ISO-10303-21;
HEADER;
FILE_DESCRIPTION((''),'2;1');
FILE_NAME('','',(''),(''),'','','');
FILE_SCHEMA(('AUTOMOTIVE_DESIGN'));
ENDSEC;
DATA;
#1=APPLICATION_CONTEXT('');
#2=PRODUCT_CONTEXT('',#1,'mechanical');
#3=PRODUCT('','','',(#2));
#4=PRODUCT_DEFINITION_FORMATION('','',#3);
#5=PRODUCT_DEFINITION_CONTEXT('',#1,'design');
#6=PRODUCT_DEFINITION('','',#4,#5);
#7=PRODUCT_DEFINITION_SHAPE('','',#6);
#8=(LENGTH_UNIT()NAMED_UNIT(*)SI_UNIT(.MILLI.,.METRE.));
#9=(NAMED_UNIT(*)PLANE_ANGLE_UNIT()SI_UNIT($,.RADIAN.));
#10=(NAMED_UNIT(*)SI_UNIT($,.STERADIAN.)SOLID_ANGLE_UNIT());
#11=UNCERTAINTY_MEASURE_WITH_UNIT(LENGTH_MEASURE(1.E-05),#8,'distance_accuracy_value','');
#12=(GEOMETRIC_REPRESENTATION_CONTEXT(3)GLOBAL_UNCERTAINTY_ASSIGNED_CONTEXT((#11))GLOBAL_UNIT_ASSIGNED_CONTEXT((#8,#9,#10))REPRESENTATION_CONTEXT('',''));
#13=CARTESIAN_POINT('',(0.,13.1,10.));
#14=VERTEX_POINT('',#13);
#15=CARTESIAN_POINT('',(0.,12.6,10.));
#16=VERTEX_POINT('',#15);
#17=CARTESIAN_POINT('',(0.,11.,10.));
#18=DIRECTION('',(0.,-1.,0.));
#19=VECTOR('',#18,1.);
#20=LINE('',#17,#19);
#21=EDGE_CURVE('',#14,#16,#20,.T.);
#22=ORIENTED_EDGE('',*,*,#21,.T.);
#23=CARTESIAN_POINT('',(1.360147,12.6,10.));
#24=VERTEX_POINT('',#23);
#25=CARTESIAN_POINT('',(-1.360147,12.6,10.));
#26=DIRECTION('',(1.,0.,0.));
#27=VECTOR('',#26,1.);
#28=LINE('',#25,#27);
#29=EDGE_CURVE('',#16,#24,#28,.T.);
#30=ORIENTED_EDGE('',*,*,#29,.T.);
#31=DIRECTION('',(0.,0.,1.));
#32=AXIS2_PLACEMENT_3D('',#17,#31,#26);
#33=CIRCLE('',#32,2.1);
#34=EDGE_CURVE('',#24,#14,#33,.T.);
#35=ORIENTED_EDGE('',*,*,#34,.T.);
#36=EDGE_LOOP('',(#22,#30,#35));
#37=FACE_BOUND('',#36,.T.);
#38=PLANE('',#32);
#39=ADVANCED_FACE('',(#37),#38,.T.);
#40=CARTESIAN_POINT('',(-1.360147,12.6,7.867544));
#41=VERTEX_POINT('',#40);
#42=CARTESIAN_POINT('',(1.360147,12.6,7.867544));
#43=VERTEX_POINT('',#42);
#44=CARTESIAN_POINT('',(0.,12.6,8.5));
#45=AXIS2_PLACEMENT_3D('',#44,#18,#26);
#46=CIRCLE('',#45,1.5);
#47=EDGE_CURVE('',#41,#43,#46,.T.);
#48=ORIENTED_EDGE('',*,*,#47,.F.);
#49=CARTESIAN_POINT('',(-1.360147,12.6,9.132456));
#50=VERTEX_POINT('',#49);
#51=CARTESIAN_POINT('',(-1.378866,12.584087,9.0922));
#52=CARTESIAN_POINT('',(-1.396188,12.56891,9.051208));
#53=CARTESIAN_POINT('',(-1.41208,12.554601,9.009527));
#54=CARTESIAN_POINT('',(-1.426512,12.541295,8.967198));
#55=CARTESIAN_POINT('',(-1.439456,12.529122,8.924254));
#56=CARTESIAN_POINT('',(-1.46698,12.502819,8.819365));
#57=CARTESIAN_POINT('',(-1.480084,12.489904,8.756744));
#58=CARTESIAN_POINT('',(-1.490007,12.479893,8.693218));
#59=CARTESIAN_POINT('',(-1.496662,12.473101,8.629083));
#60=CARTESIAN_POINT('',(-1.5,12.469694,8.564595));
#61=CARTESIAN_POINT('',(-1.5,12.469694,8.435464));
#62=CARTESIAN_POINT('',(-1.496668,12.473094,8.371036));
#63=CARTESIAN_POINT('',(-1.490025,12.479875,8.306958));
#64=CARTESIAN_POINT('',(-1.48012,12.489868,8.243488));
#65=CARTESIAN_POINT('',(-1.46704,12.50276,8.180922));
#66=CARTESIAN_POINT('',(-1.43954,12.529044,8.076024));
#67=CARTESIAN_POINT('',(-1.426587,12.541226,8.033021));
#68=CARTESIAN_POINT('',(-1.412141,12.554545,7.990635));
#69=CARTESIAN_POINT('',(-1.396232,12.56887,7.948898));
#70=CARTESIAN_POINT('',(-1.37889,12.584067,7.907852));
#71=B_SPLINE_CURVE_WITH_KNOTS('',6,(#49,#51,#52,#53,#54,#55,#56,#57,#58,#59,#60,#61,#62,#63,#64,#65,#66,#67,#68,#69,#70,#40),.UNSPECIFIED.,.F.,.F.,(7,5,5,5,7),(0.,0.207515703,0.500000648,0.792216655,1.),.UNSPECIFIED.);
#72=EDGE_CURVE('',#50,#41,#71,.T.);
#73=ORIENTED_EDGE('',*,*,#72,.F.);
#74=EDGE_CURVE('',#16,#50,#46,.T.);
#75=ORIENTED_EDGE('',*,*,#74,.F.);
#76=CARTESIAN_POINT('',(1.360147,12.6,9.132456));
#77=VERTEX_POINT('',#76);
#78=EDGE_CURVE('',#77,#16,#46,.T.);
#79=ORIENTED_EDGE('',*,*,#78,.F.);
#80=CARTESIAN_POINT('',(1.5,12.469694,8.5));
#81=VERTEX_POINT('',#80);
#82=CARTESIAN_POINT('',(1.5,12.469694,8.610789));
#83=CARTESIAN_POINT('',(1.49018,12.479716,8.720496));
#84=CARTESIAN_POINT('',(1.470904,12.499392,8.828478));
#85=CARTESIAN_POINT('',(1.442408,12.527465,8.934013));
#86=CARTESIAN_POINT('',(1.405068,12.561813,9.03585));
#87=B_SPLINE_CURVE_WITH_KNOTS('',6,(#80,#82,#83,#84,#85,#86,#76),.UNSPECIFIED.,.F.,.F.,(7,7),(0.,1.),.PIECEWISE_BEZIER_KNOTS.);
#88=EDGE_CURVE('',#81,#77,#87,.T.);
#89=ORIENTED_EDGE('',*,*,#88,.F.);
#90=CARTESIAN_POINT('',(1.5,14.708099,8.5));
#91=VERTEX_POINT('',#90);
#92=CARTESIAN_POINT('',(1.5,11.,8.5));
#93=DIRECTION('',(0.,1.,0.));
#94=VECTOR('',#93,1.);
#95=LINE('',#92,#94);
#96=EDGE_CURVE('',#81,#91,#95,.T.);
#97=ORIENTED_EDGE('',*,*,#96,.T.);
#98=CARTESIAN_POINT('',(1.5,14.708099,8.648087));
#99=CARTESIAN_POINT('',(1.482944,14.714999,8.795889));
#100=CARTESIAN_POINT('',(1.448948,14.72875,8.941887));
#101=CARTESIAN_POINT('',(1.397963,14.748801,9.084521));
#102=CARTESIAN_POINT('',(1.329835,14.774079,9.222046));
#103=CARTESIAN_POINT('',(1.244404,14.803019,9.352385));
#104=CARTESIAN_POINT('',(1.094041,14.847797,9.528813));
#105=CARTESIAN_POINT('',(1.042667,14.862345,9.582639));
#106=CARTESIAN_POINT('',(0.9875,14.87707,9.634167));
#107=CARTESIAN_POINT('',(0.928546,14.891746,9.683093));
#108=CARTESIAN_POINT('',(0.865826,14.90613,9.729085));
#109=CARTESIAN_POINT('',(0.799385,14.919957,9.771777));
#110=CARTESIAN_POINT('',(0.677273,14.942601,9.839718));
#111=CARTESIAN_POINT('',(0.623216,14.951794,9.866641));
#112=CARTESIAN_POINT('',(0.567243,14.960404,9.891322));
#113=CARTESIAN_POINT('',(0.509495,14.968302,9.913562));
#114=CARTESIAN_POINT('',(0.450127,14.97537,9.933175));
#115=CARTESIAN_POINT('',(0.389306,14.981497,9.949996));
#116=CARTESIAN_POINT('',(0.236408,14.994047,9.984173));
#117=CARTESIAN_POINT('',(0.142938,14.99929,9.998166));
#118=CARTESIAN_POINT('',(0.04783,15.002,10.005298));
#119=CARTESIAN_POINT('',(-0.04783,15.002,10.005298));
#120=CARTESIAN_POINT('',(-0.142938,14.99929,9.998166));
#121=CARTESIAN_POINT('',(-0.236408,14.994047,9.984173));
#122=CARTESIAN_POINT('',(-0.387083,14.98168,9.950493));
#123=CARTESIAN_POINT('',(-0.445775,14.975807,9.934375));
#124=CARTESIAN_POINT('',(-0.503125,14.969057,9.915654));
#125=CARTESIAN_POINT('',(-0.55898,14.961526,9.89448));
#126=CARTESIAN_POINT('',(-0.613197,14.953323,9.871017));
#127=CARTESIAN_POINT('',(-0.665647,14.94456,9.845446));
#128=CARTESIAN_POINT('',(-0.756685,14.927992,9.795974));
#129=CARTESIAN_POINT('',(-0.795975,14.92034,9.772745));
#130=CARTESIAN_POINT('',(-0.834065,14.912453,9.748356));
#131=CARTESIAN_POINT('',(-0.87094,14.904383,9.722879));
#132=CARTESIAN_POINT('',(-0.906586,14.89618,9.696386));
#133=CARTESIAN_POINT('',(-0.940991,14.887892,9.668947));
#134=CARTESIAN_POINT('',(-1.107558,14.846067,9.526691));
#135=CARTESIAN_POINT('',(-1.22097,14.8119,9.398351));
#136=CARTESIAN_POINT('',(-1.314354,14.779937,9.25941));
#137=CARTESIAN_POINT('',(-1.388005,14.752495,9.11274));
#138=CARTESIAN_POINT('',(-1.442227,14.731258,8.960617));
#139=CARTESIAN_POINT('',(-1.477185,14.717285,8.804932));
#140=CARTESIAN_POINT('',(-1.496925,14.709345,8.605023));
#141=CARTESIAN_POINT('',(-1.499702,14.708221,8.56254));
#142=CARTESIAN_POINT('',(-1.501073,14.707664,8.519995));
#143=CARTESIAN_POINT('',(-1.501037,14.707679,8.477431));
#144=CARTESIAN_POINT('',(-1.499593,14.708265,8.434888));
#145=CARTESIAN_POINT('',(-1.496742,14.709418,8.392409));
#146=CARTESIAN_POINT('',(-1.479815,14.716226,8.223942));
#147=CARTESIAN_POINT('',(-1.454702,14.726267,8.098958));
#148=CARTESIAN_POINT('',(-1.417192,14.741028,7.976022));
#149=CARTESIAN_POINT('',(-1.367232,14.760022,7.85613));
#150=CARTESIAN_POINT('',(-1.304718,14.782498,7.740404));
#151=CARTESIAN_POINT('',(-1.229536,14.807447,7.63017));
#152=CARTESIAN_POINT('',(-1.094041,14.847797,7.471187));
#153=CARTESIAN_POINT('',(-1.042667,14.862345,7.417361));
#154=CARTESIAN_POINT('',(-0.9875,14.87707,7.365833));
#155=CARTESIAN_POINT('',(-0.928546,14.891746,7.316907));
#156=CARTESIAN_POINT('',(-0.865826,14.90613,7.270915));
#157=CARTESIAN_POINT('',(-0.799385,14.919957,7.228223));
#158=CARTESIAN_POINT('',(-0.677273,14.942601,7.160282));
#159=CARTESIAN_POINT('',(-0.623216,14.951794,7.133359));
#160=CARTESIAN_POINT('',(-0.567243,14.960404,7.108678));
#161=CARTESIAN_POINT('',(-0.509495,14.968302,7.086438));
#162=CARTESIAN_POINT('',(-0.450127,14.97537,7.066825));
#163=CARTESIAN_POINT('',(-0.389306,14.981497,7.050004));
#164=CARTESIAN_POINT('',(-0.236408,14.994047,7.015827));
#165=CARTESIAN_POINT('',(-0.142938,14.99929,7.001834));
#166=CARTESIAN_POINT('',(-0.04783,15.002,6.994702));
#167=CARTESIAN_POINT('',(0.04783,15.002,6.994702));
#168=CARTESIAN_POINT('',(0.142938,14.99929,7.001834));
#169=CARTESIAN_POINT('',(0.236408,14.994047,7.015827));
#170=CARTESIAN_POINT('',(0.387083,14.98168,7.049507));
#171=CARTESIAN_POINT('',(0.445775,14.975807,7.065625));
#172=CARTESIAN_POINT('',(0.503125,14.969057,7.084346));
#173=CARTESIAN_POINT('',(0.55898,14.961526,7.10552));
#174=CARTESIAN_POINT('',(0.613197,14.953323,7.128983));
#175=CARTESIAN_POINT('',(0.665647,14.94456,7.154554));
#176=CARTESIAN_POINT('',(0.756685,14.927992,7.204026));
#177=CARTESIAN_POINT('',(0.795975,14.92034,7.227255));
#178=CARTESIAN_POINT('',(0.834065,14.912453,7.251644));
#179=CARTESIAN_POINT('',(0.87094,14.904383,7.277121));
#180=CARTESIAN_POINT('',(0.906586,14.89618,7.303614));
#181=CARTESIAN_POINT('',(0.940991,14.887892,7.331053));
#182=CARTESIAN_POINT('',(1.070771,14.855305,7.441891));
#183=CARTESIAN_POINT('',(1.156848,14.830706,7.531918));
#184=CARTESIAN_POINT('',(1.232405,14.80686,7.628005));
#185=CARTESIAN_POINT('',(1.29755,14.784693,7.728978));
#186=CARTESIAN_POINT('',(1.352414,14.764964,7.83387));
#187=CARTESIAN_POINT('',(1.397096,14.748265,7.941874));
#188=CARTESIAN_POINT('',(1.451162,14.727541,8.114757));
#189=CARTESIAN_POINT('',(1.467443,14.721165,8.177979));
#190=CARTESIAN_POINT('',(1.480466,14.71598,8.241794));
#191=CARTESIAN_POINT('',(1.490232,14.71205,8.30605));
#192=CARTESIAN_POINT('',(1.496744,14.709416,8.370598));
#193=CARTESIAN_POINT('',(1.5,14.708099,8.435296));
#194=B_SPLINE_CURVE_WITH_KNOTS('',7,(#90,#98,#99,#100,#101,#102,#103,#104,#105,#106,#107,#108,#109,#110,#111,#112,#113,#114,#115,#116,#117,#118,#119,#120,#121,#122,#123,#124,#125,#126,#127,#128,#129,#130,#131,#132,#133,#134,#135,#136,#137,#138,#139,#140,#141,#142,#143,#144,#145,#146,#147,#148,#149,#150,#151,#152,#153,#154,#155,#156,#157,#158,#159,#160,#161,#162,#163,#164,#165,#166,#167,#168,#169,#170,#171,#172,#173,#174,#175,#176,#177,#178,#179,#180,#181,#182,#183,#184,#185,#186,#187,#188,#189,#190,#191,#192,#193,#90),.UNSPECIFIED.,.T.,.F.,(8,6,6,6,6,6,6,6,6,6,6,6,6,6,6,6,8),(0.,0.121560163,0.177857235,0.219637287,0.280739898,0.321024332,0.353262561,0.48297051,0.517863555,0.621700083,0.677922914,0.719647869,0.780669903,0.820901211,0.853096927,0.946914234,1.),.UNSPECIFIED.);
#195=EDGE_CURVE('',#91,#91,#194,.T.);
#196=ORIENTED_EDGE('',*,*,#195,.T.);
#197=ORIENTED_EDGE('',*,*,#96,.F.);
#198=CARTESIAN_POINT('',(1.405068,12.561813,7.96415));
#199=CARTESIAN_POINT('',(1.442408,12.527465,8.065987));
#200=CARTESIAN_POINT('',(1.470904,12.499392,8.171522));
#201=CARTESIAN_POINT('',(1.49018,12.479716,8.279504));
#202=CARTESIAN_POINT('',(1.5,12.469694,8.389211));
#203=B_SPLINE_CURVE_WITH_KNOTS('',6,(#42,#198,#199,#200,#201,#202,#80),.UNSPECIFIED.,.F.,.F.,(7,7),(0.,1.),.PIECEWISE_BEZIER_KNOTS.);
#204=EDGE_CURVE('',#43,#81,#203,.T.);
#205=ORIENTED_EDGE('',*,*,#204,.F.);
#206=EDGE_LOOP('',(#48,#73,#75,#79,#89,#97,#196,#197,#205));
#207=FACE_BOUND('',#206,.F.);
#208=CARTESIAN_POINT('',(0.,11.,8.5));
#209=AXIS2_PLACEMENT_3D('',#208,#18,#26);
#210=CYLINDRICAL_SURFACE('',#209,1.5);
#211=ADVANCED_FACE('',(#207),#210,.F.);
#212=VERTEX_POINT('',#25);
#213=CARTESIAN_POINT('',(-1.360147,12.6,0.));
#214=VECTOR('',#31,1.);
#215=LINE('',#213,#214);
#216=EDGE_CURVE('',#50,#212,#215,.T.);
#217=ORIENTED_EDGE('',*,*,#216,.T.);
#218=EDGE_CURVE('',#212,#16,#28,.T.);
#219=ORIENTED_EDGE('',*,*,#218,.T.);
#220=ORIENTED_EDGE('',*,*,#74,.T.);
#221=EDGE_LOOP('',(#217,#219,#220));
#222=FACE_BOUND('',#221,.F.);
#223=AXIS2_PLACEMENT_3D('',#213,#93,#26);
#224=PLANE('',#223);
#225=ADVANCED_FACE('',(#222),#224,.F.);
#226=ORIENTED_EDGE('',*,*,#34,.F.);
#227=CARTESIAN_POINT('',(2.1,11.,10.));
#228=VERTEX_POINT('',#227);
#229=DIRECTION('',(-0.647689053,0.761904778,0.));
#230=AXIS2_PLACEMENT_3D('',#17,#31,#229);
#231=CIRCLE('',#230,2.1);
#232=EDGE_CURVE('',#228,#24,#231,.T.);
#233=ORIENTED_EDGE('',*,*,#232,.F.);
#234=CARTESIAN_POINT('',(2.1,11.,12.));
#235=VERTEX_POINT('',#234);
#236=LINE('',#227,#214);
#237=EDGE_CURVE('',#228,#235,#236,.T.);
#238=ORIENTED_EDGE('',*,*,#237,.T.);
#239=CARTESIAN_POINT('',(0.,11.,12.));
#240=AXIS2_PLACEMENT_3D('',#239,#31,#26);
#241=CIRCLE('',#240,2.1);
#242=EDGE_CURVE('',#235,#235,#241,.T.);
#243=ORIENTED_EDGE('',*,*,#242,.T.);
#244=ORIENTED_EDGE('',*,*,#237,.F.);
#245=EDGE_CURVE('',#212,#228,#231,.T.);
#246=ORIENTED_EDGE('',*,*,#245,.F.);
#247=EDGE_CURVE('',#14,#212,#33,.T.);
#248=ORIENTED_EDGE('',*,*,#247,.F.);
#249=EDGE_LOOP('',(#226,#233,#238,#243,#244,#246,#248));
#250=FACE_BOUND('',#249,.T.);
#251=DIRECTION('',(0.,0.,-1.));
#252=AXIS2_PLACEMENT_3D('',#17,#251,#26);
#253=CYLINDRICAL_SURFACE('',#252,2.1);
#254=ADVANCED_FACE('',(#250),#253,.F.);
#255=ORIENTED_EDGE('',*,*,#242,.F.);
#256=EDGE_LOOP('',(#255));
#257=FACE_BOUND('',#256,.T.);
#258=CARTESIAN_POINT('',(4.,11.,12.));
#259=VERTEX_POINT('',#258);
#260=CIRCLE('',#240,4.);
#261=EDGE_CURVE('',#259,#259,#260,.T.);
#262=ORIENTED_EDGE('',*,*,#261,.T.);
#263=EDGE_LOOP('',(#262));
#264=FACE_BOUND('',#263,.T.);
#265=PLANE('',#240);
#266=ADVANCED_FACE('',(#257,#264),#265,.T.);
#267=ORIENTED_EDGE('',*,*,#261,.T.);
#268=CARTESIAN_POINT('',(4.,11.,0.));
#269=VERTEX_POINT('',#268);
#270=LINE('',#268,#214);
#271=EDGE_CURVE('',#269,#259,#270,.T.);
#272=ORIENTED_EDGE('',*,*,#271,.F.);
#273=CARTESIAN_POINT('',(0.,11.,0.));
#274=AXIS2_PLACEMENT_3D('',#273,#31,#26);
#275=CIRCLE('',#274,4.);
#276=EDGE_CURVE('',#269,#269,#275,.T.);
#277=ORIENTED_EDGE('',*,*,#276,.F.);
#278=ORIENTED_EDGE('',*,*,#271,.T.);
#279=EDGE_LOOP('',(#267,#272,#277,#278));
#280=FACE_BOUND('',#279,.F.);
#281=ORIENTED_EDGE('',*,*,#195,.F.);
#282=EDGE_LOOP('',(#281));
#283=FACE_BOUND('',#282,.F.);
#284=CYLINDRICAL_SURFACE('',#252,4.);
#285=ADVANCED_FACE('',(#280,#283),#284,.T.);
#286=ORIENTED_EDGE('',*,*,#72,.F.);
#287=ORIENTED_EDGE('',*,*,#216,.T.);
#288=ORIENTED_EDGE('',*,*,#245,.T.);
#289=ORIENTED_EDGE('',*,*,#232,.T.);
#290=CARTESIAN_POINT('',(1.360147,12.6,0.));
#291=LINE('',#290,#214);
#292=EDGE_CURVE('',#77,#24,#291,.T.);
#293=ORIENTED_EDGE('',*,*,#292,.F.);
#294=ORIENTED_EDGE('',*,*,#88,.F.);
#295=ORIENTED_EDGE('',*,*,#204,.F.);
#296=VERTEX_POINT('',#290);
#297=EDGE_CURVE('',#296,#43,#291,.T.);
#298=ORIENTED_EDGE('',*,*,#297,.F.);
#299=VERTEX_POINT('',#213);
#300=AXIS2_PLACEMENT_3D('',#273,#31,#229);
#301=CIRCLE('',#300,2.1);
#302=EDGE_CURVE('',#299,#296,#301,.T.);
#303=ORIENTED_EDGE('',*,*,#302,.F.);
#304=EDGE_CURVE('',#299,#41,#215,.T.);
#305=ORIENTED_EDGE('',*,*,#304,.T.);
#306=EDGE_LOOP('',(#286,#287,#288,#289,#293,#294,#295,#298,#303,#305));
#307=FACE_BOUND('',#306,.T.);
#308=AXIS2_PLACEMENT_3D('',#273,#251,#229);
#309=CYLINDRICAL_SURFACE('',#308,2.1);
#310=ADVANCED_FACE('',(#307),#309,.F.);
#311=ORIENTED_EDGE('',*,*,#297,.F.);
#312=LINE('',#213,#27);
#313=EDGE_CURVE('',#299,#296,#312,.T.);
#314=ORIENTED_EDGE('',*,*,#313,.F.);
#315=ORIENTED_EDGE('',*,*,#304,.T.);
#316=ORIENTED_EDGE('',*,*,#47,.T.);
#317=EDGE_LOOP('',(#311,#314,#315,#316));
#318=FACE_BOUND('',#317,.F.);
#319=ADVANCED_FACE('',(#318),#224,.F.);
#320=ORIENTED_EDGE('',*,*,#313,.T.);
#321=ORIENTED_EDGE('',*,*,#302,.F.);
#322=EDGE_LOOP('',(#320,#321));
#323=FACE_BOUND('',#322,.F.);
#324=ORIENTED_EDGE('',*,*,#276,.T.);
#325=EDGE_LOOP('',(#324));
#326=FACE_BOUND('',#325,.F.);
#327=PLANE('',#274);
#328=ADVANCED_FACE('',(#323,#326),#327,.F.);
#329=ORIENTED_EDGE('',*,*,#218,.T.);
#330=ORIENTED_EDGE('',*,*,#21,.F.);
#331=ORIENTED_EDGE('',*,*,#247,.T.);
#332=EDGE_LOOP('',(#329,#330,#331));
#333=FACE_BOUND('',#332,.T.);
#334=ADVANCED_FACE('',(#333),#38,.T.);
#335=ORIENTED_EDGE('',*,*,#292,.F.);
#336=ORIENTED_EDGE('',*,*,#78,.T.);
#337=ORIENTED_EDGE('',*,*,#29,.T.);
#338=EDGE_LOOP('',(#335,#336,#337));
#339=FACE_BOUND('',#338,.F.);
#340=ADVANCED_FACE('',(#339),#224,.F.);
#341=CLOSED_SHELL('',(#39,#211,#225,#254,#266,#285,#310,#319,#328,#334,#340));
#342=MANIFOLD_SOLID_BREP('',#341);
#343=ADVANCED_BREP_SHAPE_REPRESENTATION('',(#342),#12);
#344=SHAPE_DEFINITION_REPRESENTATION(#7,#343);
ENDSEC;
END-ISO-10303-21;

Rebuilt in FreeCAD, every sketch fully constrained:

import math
import FreeCAD as App
import Part
import Sketcher

V = App.Vector

doc = App.newDocument("Part")
params = doc.addObject("Spreadsheet::Sheet", "Params")
for row, (alias, value) in enumerate([
    ("sketch1_diameter", "8 mm"),
    ("sketch1_radius", "2.1 mm"),
    ("pad1_length", "10 mm"),
    ("sketch2_diameter", "8 mm"),
    ("sketch2_diameter2", "4.2 mm"),
    ("pad2_length", "2 mm"),
    ("sketch3_diameter", "3 mm"),
], start=1):
    params.set(f"A{row}", alias)
    params.set(f"B{row}", "=" + value)
    params.setAlias(f"B{row}", alias)

body = doc.addObject("PartDesign::Body", "Body")

# Sketch on XY plane
sketch1 = doc.addObject("Sketcher::SketchObject", "Sketch")
body.addObject(sketch1)
sketch1.AttachmentSupport = (doc.XY_Plane, [""])
sketch1.MapMode = "FlatFace"
sketch1.addGeometry(Part.Circle(V(0, 0, 0), V(0, 0, 1), 4), False)
sketch1.addGeometry(Part.ArcOfCircle(Part.Circle(V(0, 0, 0), V(0, 0, 1), 2.1), math.radians(130), math.radians(410)), False)
sketch1.addGeometry(Part.LineSegment(V(-1.4, 1.6, 0), V(1.4, 1.6, 0)), False)
sketch1.addConstraint(Sketcher.Constraint("Coincident", 1, 1, 2, 1))
sketch1.addConstraint(Sketcher.Constraint("Coincident", 2, 2, 1, 2))
sketch1.addConstraint(Sketcher.Constraint("Horizontal", 2))
sketch1.addConstraint(Sketcher.Constraint("Coincident", 0, 3, -1, 1))
sketch1.addConstraint(Sketcher.Constraint("Coincident", 1, 3, -1, 1))
sketch1.addConstraint(Sketcher.Constraint("Diameter", 0, 8.0))
sketch1.addConstraint(Sketcher.Constraint("Radius", 1, 2.1))
sketch1.addConstraint(Sketcher.Constraint("DistanceY", -1, 1, 1, 1, 1.6))
sketch1.setExpression("Constraints[5]", "Params.sketch1_diameter")
sketch1.setExpression("Constraints[6]", "Params.sketch1_radius")
pad1 = doc.addObject("PartDesign::Pad", "Pad")
body.addObject(pad1)
pad1.Profile = sketch1
pad1.setExpression("Length", "Params.pad1_length")

# Sketch on XY plane
sketch2 = doc.addObject("Sketcher::SketchObject", "Sketch001")
body.addObject(sketch2)
sketch2.AttachmentSupport = (doc.XY_Plane, [""])
sketch2.MapMode = "FlatFace"
sketch2.AttachmentOffset = App.Placement(V(0, 0, 10), App.Rotation())
sketch2.addGeometry(Part.Circle(V(0, 0, 0), V(0, 0, 1), 4), False)
sketch2.addGeometry(Part.Circle(V(0, 0, 0), V(0, 0, 1), 2.1), False)
sketch2.addConstraint(Sketcher.Constraint("Coincident", 0, 3, -1, 1))
sketch2.addConstraint(Sketcher.Constraint("Coincident", 1, 3, -1, 1))
sketch2.addConstraint(Sketcher.Constraint("Diameter", 0, 8.0))
sketch2.addConstraint(Sketcher.Constraint("Diameter", 1, 4.2))
sketch2.setExpression("Constraints[2]", "Params.sketch2_diameter")
sketch2.setExpression("Constraints[3]", "Params.sketch2_diameter2")
pad2 = doc.addObject("PartDesign::Pad", "Pad001")
body.addObject(pad2)
pad2.Profile = sketch2
pad2.setExpression("Length", "Params.pad2_length")

# Sketch on XZ plane
sketch3 = doc.addObject("Sketcher::SketchObject", "Sketch002")
body.addObject(sketch3)
sketch3.AttachmentSupport = (doc.XZ_Plane, [""])
sketch3.MapMode = "FlatFace"
sketch3.addGeometry(Part.Circle(V(0, 8.5, 0), V(0, 0, 1), 1.5), False)
sketch3.addConstraint(Sketcher.Constraint("PointOnObject", 0, 3, -2))
sketch3.addConstraint(Sketcher.Constraint("Diameter", 0, 3.0))
sketch3.addConstraint(Sketcher.Constraint("DistanceY", -1, 1, 0, 3, 8.5))
sketch3.setExpression("Constraints[1]", "Params.sketch3_diameter")
pocket1 = doc.addObject("PartDesign::Pocket", "Pocket")
body.addObject(pocket1)
pocket1.Profile = sketch3
pocket1.Type = "ThroughAll"
body2 = doc.addObject("PartDesign::Body", "Body001")
doc.recompute()

body.Placement = App.Placement(V(0, 11, 0), App.Rotation(V(0, 0, 1), 0))
boolean = doc.addObject("PartDesign::Boolean", "Boolean")
body2.addObject(boolean)
boolean.Type = "Fuse"
boolean.addObjects([body])

doc.recompute()
